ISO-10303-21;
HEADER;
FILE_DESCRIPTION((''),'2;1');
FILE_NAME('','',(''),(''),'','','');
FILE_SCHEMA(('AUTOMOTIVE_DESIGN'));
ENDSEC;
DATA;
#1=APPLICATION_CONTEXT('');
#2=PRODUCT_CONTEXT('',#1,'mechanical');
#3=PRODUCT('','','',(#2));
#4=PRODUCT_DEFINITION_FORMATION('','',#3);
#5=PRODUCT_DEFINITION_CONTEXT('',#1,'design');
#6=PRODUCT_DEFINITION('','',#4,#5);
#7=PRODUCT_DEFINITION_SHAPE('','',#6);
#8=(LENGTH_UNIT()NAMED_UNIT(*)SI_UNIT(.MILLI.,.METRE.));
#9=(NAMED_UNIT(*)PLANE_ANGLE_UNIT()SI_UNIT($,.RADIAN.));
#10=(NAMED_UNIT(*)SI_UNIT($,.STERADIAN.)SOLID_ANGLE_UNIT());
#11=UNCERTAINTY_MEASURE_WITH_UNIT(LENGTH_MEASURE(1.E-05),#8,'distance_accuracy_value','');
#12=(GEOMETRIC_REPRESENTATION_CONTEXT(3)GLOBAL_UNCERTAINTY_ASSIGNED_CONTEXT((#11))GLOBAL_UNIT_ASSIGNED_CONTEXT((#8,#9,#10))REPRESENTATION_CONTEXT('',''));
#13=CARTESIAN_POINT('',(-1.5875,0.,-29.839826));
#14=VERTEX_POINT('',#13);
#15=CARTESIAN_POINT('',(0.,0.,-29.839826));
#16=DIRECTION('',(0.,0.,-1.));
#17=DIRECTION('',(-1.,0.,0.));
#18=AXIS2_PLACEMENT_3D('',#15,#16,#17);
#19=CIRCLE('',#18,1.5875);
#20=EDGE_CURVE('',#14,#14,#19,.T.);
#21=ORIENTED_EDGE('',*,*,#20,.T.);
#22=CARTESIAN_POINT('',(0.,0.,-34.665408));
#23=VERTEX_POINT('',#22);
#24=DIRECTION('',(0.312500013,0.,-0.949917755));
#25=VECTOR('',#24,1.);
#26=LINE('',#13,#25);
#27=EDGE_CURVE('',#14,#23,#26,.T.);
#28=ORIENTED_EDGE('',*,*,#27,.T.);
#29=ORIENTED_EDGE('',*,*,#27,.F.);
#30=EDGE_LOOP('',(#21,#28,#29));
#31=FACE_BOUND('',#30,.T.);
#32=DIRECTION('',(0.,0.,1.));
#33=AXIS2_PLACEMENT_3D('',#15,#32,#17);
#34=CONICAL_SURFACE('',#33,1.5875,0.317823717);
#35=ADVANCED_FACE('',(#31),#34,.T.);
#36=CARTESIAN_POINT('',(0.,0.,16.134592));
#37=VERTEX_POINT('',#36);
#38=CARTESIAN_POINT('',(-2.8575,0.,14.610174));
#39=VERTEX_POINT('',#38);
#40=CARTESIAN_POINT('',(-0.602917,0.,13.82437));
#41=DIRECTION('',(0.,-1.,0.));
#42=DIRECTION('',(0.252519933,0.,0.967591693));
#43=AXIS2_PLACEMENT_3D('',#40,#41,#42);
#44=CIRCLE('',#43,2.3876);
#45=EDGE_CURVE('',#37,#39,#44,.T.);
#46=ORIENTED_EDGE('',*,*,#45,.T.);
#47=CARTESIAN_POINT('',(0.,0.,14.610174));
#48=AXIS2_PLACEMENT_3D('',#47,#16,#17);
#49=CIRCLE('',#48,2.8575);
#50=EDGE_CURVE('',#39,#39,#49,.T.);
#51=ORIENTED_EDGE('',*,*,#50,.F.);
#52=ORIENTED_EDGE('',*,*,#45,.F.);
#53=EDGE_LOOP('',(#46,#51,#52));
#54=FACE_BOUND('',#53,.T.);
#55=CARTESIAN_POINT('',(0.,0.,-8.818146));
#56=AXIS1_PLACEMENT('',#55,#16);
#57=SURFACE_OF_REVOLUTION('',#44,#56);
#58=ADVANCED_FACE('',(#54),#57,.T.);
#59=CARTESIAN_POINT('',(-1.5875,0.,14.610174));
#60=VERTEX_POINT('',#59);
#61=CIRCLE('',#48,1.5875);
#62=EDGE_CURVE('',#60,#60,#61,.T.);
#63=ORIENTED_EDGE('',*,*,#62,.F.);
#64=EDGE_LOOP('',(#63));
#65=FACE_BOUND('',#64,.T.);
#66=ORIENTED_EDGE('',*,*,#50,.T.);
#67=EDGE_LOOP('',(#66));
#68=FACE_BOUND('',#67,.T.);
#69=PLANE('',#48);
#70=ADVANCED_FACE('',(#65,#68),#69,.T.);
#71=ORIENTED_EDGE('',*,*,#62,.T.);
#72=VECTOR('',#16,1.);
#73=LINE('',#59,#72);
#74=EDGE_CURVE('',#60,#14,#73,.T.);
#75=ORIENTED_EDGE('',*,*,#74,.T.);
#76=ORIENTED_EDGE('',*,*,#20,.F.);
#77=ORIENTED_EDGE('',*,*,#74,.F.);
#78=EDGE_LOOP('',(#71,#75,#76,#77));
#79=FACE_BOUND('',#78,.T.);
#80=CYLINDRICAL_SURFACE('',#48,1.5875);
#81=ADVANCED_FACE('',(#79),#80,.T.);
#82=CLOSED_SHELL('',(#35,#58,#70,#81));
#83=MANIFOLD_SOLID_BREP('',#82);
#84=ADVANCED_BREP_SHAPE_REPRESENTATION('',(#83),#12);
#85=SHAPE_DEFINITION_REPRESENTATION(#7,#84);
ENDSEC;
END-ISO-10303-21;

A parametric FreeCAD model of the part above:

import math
import FreeCAD as App
import Part
import Sketcher

V = App.Vector
Q = App.Units.Quantity

doc = App.newDocument("Part")
body = doc.addObject("PartDesign::Body", "Body")

# Sketch on XZ plane
sketch1 = body.newObject("Sketcher::SketchObject", "Sketch")
sketch1.AttachmentSupport = (doc.getObject("XZ_Plane"), [""])
sketch1.MapMode = "FlatFace"
sketch1.addGeometry([
    Part.LineSegment(V(0, -34.665408, 0), V(0, 16.134592, 0)),  # 0
    Part.ArcOfCircle(Part.Circle(V(-0.602917, 13.82437, 0), V(0, 0, 1), 2.3876), math.radians(75.373321), math.radians(160.784703)),  # 1
    Part.LineSegment(V(-2.8575, 14.610174, 0), V(-1.5875, 14.610174, 0)),  # 2
    Part.LineSegment(V(-1.5875, 14.610174, 0), V(-1.5875, -29.839826, 0)),  # 3
    Part.LineSegment(V(-1.5875, -29.839826, 0), V(0, -34.665408, 0)),  # 4
], False)
sketch1.addConstraint([
    Sketcher.Constraint("Coincident", 0, 2, 1, 1),
    Sketcher.Constraint("Coincident", 1, 2, 2, 1),
    Sketcher.Constraint("Coincident", 2, 2, 3, 1),
    Sketcher.Constraint("Coincident", 3, 2, 4, 1),
    Sketcher.Constraint("Coincident", 4, 2, 0, 1),
    Sketcher.Constraint("Vertical", 0),
    Sketcher.Constraint("Horizontal", 2),
    Sketcher.Constraint("Vertical", 3),
    Sketcher.Constraint("PointOnObject", 0, 2, -2),
    Sketcher.Constraint("DistanceY", 0, 1, 0, 2, Q("2 in")),
    Sketcher.Constraint("Radius", 1, Q("0.094 in")),
    Sketcher.Constraint("Distance", 4, Q("0.2 in")),
    Sketcher.Constraint("DistanceX", 2, 1, 2, 2, Q("0.05 in")),
    Sketcher.Constraint("DistanceY", 3, 2, 3, 1, Q("1.75 in")),
    Sketcher.Constraint("DistanceX", 2, 2, -1, 1, Q("0.0625 in")),
    Sketcher.Constraint("DistanceY", -1, 1, 1, 3, Q("13.82437 mm")),
])
revolution = body.newObject("PartDesign::Revolution", "Revolution")
revolution.Profile = sketch1
revolution.ReferenceAxis = (sketch1, ["V_Axis"])
revolution.Angle = 360

doc.recompute()
